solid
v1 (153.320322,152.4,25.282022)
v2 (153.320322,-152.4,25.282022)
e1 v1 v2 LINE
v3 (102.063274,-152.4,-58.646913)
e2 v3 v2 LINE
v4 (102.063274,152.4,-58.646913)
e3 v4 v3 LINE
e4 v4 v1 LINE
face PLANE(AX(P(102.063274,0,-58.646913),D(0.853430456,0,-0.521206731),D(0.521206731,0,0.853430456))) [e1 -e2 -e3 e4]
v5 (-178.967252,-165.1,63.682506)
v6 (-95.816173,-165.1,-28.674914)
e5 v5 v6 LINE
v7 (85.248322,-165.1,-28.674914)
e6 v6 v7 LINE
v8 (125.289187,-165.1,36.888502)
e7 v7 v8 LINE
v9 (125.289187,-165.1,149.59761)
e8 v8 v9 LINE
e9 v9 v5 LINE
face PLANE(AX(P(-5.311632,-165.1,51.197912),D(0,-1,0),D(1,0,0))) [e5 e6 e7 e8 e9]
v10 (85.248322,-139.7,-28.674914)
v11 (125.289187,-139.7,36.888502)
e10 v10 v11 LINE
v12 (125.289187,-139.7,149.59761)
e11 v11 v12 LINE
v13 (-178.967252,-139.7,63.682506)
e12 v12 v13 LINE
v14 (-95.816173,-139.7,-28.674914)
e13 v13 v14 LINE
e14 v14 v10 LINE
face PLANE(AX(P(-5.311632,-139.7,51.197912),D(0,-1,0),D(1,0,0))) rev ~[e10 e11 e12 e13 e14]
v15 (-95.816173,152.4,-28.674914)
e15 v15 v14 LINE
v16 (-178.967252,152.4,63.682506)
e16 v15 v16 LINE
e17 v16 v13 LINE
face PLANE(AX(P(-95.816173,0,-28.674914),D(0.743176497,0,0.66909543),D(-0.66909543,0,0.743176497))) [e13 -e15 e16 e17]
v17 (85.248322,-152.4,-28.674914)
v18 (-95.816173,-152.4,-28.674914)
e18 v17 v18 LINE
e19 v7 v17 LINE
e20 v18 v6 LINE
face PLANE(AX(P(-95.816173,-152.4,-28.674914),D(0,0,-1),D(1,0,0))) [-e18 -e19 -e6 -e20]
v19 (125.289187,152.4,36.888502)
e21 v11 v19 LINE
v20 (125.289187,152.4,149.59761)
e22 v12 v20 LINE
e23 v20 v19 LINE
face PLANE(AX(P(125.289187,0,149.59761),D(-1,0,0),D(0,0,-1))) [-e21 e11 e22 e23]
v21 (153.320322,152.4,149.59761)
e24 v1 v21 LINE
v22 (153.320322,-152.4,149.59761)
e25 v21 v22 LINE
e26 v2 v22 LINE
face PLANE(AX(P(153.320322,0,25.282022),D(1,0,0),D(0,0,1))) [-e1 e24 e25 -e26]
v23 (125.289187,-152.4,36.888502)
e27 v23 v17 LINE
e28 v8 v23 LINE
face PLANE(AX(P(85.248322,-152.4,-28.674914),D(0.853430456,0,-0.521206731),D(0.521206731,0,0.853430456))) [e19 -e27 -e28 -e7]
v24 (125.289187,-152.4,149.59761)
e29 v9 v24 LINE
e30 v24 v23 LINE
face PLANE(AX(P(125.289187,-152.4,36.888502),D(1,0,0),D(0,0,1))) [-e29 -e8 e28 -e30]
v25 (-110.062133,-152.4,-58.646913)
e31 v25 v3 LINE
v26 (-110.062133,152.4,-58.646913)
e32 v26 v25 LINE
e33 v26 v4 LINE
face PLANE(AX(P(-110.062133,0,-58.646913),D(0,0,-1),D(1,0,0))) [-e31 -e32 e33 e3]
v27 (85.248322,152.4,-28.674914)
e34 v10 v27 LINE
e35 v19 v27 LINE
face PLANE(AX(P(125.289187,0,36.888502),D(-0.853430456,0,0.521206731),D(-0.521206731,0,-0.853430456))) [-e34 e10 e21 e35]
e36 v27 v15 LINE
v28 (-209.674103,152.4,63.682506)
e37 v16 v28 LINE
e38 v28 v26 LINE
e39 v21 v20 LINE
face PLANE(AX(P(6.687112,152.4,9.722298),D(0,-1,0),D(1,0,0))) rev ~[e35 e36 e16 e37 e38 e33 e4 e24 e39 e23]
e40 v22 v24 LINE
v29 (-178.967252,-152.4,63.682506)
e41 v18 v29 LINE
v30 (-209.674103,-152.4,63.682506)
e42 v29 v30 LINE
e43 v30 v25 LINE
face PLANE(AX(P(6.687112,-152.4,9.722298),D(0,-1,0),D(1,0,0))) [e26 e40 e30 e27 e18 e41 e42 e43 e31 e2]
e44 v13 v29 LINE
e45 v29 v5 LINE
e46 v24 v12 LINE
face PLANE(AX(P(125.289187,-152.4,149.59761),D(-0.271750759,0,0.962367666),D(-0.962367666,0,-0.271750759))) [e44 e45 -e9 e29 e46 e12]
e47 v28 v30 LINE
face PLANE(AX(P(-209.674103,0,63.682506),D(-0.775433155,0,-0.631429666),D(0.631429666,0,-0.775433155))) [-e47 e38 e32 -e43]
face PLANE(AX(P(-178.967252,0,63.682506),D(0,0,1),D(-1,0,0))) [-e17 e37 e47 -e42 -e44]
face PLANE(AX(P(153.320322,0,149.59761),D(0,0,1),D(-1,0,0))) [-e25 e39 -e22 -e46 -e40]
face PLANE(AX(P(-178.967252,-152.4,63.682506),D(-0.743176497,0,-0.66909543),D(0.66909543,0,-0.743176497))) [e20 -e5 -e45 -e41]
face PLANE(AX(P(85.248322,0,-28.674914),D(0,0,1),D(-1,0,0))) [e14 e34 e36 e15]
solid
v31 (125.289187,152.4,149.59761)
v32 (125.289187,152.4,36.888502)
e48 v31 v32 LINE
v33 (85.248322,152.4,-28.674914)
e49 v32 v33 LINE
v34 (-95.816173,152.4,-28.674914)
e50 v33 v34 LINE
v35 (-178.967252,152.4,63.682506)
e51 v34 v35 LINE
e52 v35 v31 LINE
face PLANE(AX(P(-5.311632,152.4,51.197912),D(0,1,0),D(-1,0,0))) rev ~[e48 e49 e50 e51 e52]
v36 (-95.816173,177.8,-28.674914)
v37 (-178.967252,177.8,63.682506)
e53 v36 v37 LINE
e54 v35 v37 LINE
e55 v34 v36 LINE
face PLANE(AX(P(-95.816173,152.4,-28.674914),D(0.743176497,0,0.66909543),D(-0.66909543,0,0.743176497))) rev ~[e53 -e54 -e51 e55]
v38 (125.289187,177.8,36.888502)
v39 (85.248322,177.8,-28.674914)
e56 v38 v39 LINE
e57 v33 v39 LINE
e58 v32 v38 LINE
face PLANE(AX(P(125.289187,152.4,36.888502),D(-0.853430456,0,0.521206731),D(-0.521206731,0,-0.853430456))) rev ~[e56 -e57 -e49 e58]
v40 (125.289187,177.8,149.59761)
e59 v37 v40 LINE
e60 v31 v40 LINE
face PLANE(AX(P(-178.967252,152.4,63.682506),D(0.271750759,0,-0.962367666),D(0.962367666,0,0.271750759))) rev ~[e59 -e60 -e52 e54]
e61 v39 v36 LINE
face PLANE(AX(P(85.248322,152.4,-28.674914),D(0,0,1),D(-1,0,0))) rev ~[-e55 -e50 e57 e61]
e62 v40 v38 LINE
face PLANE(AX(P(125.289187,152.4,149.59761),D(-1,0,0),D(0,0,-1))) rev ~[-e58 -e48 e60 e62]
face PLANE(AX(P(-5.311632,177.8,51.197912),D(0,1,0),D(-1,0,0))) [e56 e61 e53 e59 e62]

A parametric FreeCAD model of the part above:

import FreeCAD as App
import Part
import Sketcher
from FreeCAD import Vector
Q = App.Units.Quantity


def add_polygon(sketch, points):
    """Adds a closed chain of lines whose ends are joined by coincident constraints."""
    first, n = sketch.GeometryCount, len(points)
    for a, b in zip(points, points[1:] + points[:1]):
        sketch.addGeometry(Part.LineSegment(App.Vector(*a, 0), App.Vector(*b, 0)), False)
    for i in range(n):
        sketch.addConstraint(Sketcher.Constraint("Coincident", first + i, 2, first + (i + 1) % n, 1))

doc = App.newDocument("Part")
body = doc.addObject("PartDesign::Body", "Body")

# Sketch on XZ plane
sketch1 = doc.addObject("Sketcher::SketchObject", "Sketch")
body.addObject(sketch1)
sketch1.AttachmentSupport = (doc.XZ_Plane, [""])
sketch1.MapMode = "FlatFace"
add_polygon(sketch1, [(85.248322, -28.674914), (-95.816173, -28.674914), (-178.967252, 63.682506), (-209.674103, 63.682506), (-110.062133, -58.646913), (102.063274, -58.646913), (153.320322, 25.282022), (153.320322, 149.59761), (125.289187, 149.59761), (125.289187, 36.888502)])  # lines 0-9
sketch1.addConstraint(Sketcher.Constraint("Horizontal", 0))
sketch1.addConstraint(Sketcher.Constraint("Horizontal", 2))
sketch1.addConstraint(Sketcher.Constraint("Horizontal", 4))
sketch1.addConstraint(Sketcher.Constraint("Vertical", 6))
sketch1.addConstraint(Sketcher.Constraint("Horizontal", 7))
sketch1.addConstraint(Sketcher.Constraint("Vertical", 8))
sketch1.addConstraint(Sketcher.Constraint("Parallel", 5, 9))
sketch1.addConstraint(Sketcher.Constraint("DistanceY", 3, 2, 0, 2, Q("1.18 in")))
sketch1.addConstraint(Sketcher.Constraint("DistanceX", 9, 2, 5, 2, Q("2.68 in")))
sketch1.addConstraint(Sketcher.Constraint("DistanceX", 1, 2, 3, 2, Q("2.7128 in")))
sketch1.addConstraint(Sketcher.Constraint("DistanceX", 3, 2, 7, 2, Q("9.2658 in")))
sketch1.addConstraint(Sketcher.Constraint("DistanceX", 2, 2, 2, 1, Q("30.706851 mm")))
sketch1.addConstraint(Sketcher.Constraint("DistanceY", 6, 1, 6, 2, Q("124.315588 mm")))
sketch1.addConstraint(Sketcher.Constraint("DistanceY", 8, 2, 8, 1, Q("112.709108 mm")))
sketch1.addConstraint(Sketcher.Constraint("Distance", 1, Q("124.273871 mm")))
sketch1.addConstraint(Sketcher.Constraint("Distance", 3, Q("157.75624 mm")))
sketch1.addConstraint(Sketcher.Constraint("DistanceX", 0, 2, 0, 1, Q("181.064495 mm")))
sketch1.addConstraint(Sketcher.Constraint("DistanceX", 4, 1, 4, 2, Q("212.125407 mm")))
sketch1.addConstraint(Sketcher.Constraint("DistanceX", 1, 2, -1, 1, Q("178.967252 mm")))
sketch1.addConstraint(Sketcher.Constraint("DistanceY", -1, 1, 6, 2, Q("149.59761 mm")))
pad1 = doc.addObject("PartDesign::Pad", "Pad")
body.addObject(pad1)
pad1.Profile = sketch1
pad1.Length = Q("12 in")
pad1.Midplane = True

# Sketch on XZ plane
sketch2 = doc.addObject("Sketcher::SketchObject", "Sketch001")
body.addObject(sketch2)
sketch2.AttachmentSupport = (doc.XZ_Plane, [""])
sketch2.MapMode = "FlatFace"
sketch2.AttachmentOffset = App.Placement(Vector(0, 0, 6 * 25.4), App.Rotation())
add_polygon(sketch2, [(125.289187, 149.59761), (-178.967252, 63.682506), (-95.816173, -28.674914), (85.248322, -28.674914), (125.289187, 36.888502)])  # lines 0-4
sketch2.addConstraint(Sketcher.Constraint("Horizontal", 2))
sketch2.addConstraint(Sketcher.Constraint("Vertical", 4))
sketch2.addConstraint(Sketcher.Constraint("DistanceX", 0, 2, 3, 2, Q("11.9786 in")))
sketch2.addConstraint(Sketcher.Constraint("DistanceY", 4, 1, 4, 2, Q("112.709108 mm")))
sketch2.addConstraint(Sketcher.Constraint("Distance", 1, Q("124.273871 mm")))
sketch2.addConstraint(Sketcher.Constraint("DistanceX", 2, 1, 2, 2, Q("181.064495 mm")))
sketch2.addConstraint(Sketcher.Constraint("DistanceX", 0, 2, -1, 1, Q("178.967252 mm")))
sketch2.addConstraint(Sketcher.Constraint("DistanceX", -1, 1, 2, 2, Q("85.248322 mm")))
sketch2.addConstraint(Sketcher.Constraint("DistanceY", -1, 1, 4, 2, Q("149.59761 mm")))
sketch2.addConstraint(Sketcher.Constraint("Distance", 0, Q("316.154054 mm")))
pad2 = doc.addObject("PartDesign::Pad", "Pad001")
body.addObject(pad2)
pad2.Profile = sketch2
pad2.Length = Q("1 in")
pad2.Midplane = True
body2 = doc.addObject("PartDesign::Body", "Body001")

# Sketch on XZ plane
sketch3 = doc.addObject("Sketcher::SketchObject", "Sketch002")
body2.addObject(sketch3)
sketch3.AttachmentSupport = (doc.getObject("XZ_Plane001"), [""])
sketch3.MapMode = "FlatFace"
sketch3.AttachmentOffset = App.Placement(Vector(0, 0, -6 * 25.4), App.Rotation())
add_polygon(sketch3, [(-178.967252, 63.682506), (125.289187, 149.59761), (125.289187, 36.888502), (85.248322, -28.674914), (-95.816173, -28.674914)])  # lines 0-4
sketch3.addConstraint(Sketcher.Constraint("Vertical", 1))
sketch3.addConstraint(Sketcher.Constraint("Horizontal", 3))
sketch3.addConstraint(Sketcher.Constraint("DistanceX", 4, 2, 1, 2, Q("11.9786 in")))
sketch3.addConstraint(Sketcher.Constraint("DistanceY", 1, 2, 1, 1, Q("112.709108 mm")))
sketch3.addConstraint(Sketcher.Constraint("Distance", 4, Q("124.273871 mm")))
sketch3.addConstraint(Sketcher.Constraint("DistanceX", 3, 2, 3, 1, Q("181.064495 mm")))
sketch3.addConstraint(Sketcher.Constraint("DistanceY", -1, 1, 0, 2, Q("149.59761 mm")))
sketch3.addConstraint(Sketcher.Constraint("DistanceX", -1, 1, 2, 2, Q("85.248322 mm")))
sketch3.addConstraint(Sketcher.Constraint("DistanceX", 4, 2, -1, 1, Q("178.967252 mm")))
sketch3.addConstraint(Sketcher.Constraint("Distance", 0, Q("316.154054 mm")))
pad3 = doc.addObject("PartDesign::Pad", "Pad002")
body2.addObject(pad3)
pad3.Profile = sketch3
pad3.Length = Q("1 in")
pad3.Reversed = True

doc.recompute()
